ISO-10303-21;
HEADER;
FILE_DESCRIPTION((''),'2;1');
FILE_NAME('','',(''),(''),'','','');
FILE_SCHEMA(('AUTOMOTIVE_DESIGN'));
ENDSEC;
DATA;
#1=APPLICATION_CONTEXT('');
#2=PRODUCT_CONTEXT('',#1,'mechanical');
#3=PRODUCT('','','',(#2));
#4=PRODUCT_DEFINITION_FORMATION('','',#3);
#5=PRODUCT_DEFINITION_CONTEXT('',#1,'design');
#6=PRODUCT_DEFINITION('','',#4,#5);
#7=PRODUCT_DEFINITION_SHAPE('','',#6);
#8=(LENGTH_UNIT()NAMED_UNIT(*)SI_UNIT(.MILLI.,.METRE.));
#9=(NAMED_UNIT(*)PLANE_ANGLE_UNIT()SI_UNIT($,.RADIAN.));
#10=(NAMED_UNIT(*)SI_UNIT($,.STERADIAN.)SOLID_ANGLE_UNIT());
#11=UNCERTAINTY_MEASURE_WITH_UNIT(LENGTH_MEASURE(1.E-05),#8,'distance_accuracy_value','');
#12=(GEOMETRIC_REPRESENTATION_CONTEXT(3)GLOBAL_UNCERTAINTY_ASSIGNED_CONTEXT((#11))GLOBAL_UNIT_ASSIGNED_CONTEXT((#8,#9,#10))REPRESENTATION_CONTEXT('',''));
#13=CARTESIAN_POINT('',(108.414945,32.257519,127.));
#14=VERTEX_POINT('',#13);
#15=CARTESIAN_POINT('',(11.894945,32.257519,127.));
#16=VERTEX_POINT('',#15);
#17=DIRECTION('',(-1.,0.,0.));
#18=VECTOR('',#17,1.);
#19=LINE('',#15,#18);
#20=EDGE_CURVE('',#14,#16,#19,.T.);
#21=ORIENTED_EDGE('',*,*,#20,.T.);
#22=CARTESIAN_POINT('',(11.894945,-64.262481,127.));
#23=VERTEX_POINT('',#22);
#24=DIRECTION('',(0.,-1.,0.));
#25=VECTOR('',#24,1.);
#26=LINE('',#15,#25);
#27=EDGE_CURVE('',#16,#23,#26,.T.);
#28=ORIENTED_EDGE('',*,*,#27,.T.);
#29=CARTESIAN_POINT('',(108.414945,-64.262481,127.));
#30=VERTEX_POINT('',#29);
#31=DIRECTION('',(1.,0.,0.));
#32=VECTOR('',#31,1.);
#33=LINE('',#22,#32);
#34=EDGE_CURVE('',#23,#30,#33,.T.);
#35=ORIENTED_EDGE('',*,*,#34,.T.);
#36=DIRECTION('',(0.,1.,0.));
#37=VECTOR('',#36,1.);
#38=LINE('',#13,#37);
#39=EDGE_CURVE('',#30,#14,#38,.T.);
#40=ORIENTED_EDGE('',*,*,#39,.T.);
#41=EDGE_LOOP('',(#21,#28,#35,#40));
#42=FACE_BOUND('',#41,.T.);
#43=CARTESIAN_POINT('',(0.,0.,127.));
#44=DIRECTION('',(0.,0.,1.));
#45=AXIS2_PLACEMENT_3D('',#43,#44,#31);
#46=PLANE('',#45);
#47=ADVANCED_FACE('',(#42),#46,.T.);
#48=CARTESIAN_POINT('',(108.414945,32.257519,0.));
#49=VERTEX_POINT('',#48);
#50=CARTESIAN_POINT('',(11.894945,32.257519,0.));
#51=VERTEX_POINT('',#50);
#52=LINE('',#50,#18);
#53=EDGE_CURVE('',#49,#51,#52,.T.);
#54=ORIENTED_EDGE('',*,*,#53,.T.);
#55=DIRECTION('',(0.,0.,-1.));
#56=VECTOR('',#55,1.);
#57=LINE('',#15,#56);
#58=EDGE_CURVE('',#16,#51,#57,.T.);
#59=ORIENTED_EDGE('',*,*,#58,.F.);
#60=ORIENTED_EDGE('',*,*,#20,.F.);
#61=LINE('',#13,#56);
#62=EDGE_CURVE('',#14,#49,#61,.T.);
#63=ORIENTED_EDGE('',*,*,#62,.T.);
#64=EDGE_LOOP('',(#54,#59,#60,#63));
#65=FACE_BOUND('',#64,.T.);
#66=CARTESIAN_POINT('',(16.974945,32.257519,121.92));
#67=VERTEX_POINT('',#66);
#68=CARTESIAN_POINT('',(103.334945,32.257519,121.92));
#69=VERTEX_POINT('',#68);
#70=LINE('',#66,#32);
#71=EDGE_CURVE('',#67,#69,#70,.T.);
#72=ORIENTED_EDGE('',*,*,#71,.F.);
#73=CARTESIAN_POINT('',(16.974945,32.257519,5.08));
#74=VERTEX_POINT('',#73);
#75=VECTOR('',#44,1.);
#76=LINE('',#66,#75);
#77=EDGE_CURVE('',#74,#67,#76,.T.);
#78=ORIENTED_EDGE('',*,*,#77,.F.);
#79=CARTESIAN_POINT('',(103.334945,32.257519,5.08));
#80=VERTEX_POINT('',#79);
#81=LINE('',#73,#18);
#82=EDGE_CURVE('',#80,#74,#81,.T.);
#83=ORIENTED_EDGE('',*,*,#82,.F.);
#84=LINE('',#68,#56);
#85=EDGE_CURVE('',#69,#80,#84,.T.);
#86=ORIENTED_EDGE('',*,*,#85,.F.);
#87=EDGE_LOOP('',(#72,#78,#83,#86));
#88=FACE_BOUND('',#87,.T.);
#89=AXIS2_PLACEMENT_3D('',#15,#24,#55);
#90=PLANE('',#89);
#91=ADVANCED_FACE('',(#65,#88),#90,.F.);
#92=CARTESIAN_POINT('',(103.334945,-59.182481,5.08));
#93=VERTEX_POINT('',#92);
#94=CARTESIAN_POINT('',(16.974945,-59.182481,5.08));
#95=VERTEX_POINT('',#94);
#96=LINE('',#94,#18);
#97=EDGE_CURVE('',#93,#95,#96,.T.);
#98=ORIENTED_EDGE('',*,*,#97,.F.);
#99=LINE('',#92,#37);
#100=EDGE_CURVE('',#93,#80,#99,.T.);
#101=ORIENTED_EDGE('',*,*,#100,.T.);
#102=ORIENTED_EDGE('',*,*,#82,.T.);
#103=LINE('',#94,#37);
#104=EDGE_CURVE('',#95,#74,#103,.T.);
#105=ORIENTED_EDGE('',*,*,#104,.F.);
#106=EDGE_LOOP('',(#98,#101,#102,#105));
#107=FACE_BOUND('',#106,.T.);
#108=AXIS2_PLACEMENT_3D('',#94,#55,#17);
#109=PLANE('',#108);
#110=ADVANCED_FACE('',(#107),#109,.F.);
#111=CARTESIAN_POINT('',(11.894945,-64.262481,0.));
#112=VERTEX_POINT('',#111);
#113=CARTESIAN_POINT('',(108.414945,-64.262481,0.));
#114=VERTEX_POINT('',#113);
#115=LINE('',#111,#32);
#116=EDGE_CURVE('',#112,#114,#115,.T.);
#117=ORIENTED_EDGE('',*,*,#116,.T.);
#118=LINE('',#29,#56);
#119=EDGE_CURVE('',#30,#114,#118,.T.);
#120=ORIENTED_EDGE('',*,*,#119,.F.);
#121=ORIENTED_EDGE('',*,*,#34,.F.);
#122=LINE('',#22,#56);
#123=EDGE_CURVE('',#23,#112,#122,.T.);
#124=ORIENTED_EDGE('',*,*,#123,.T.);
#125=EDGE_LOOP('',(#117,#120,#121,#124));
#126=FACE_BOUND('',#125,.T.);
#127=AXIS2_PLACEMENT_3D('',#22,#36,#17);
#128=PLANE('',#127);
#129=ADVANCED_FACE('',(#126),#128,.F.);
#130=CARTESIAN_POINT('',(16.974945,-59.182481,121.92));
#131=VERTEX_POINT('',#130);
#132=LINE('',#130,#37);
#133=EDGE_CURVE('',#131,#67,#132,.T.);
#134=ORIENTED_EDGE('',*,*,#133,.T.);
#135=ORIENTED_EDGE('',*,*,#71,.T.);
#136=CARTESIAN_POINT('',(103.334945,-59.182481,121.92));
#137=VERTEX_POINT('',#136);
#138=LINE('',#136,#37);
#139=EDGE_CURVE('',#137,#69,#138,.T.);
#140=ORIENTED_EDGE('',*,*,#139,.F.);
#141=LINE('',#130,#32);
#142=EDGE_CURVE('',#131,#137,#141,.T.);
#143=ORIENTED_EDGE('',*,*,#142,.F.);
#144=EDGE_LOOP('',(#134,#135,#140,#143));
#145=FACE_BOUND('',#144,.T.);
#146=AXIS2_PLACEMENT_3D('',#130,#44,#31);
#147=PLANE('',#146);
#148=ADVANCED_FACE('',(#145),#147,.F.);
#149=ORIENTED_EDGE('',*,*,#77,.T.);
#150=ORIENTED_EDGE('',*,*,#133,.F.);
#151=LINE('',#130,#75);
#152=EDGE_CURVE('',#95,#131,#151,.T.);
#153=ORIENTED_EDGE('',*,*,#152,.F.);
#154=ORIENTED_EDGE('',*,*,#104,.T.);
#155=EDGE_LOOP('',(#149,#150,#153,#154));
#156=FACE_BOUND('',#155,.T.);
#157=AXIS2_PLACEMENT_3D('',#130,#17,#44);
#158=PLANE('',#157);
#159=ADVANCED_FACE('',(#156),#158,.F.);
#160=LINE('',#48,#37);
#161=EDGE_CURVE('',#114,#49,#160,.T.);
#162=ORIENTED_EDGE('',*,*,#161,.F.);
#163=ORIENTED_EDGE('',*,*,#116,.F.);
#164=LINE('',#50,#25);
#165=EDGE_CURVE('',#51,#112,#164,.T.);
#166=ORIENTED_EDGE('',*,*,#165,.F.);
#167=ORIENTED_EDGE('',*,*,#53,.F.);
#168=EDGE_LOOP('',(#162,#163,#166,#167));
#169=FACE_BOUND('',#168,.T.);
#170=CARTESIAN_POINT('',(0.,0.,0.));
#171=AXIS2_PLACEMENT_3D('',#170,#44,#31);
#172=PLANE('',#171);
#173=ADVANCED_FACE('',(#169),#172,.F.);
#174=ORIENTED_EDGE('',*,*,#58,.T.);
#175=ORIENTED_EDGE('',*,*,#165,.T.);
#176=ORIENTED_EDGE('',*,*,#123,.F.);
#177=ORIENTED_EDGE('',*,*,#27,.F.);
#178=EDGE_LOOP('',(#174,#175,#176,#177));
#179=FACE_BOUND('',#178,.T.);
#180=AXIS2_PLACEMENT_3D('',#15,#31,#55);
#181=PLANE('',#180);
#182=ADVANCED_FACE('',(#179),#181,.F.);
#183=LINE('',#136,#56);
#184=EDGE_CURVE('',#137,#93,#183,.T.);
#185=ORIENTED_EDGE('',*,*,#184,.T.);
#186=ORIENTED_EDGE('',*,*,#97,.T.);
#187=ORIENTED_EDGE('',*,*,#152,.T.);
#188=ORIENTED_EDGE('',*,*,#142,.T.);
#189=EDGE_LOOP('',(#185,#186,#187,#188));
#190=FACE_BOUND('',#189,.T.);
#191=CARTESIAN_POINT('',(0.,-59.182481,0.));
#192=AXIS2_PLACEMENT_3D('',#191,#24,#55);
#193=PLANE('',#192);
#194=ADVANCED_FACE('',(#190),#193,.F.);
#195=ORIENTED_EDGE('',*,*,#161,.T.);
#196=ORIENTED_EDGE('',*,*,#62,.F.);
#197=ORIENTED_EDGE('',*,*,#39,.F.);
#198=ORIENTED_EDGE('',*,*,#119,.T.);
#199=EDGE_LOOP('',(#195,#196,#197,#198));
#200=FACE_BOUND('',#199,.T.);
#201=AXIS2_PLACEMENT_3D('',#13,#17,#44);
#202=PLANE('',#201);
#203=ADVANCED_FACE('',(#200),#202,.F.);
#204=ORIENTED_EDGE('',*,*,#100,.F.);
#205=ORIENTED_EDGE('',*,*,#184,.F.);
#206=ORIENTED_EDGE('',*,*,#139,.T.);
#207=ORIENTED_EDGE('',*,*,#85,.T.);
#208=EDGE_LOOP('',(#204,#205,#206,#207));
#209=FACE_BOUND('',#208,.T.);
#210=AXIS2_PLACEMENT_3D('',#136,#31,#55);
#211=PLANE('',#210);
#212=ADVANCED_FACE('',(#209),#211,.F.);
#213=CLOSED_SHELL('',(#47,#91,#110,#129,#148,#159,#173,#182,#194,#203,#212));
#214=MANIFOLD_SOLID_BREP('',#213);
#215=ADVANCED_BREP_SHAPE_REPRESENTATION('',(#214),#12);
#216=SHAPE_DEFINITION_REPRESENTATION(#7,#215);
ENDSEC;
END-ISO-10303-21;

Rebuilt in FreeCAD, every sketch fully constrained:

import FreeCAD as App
import Part
import Sketcher
Q = App.Units.Quantity

doc = App.newDocument("Part")
body = doc.addObject("PartDesign::Body", "Body")

# Sketch on XY plane
sketch1 = body.newObject("Sketcher::SketchObject", "Sketch")
sketch1.AttachmentSupport = (doc.getObject("XY_Plane"), [""])
sketch1.MapMode = "FlatFace"
sketch1.addGeometry([
    Part.LineSegment(App.Vector(12, 32, 0), App.Vector(12, -64, 0)),
    Part.LineSegment(App.Vector(12, -64, 0), App.Vector(108, -64, 0)),
    Part.LineSegment(App.Vector(108, -64, 0), App.Vector(108, 32, 0)),
    Part.LineSegment(App.Vector(108, 32, 0), App.Vector(12, 32, 0)),
], False)
sketch1.addConstraint([
    Sketcher.Constraint("Coincident", 0, 2, 1, 1),
    Sketcher.Constraint("Coincident", 1, 2, 2, 1),
    Sketcher.Constraint("Coincident", 2, 2, 3, 1),
    Sketcher.Constraint("Coincident", 3, 2, 0, 1),
    Sketcher.Constraint("Vertical", 0),
    Sketcher.Constraint("Horizontal", 1),
    Sketcher.Constraint("Vertical", 2),
    Sketcher.Constraint("Horizontal", 3),
    Sketcher.Constraint("Equal", 3, 0),
    Sketcher.Constraint("DistanceX", 1, 1, 1, 2, Q("3.8 in")),
    Sketcher.Constraint("DistanceY", 0, 2, -1, 1, Q("64.262481 mm")),
    Sketcher.Constraint("DistanceX", -1, 1, 0, 2, Q("11.894945 mm")),
])
pad1 = body.newObject("PartDesign::Pad", "Pad")
pad1.Profile = sketch1
pad1.Length = Q("5 in")

# Sketch on XZ plane
sketch2 = body.newObject("Sketcher::SketchObject", "Sketch001")
sketch2.AttachmentSupport = (doc.getObject("XZ_Plane"), [""])
sketch2.MapMode = "FlatFace"
sketch2.AttachmentOffset = App.Placement(App.Vector(0, 0, -32.257519), App.Rotation())
sketch2.addGeometry([
    Part.LineSegment(App.Vector(17, 5, 0), App.Vector(17, 122, 0)),
    Part.LineSegment(App.Vector(17, 122, 0), App.Vector(103, 122, 0)),
    Part.LineSegment(App.Vector(103, 122, 0), App.Vector(103, 5, 0)),
    Part.LineSegment(App.Vector(103, 5, 0), App.Vector(17, 5, 0)),
], False)
sketch2.addConstraint([
    Sketcher.Constraint("Coincident", 0, 2, 1, 1),
    Sketcher.Constraint("Coincident", 1, 2, 2, 1),
    Sketcher.Constraint("Coincident", 2, 2, 3, 1),
    Sketcher.Constraint("Coincident", 3, 2, 0, 1),
    Sketcher.Constraint("Vertical", 0),
    Sketcher.Constraint("Horizontal", 1),
    Sketcher.Constraint("Vertical", 2),
    Sketcher.Constraint("Horizontal", 3),
    Sketcher.Constraint("DistanceX", 1, 1, 1, 2, Q("3.4 in")),
    Sketcher.Constraint("DistanceY", 0, 1, 0, 2, Q("4.6 in")),
    Sketcher.Constraint("DistanceY", -1, 1, 0, 2, Q("4.8 in")),
    Sketcher.Constraint("DistanceX", -1, 1, 0, 2, Q("16.974945 mm")),
])
pocket1 = body.newObject("PartDesign::Pocket", "Pocket")
pocket1.Profile = sketch2
pocket1.Length = Q("3.6 in")
pocket1.Reversed = True

doc.recompute()
